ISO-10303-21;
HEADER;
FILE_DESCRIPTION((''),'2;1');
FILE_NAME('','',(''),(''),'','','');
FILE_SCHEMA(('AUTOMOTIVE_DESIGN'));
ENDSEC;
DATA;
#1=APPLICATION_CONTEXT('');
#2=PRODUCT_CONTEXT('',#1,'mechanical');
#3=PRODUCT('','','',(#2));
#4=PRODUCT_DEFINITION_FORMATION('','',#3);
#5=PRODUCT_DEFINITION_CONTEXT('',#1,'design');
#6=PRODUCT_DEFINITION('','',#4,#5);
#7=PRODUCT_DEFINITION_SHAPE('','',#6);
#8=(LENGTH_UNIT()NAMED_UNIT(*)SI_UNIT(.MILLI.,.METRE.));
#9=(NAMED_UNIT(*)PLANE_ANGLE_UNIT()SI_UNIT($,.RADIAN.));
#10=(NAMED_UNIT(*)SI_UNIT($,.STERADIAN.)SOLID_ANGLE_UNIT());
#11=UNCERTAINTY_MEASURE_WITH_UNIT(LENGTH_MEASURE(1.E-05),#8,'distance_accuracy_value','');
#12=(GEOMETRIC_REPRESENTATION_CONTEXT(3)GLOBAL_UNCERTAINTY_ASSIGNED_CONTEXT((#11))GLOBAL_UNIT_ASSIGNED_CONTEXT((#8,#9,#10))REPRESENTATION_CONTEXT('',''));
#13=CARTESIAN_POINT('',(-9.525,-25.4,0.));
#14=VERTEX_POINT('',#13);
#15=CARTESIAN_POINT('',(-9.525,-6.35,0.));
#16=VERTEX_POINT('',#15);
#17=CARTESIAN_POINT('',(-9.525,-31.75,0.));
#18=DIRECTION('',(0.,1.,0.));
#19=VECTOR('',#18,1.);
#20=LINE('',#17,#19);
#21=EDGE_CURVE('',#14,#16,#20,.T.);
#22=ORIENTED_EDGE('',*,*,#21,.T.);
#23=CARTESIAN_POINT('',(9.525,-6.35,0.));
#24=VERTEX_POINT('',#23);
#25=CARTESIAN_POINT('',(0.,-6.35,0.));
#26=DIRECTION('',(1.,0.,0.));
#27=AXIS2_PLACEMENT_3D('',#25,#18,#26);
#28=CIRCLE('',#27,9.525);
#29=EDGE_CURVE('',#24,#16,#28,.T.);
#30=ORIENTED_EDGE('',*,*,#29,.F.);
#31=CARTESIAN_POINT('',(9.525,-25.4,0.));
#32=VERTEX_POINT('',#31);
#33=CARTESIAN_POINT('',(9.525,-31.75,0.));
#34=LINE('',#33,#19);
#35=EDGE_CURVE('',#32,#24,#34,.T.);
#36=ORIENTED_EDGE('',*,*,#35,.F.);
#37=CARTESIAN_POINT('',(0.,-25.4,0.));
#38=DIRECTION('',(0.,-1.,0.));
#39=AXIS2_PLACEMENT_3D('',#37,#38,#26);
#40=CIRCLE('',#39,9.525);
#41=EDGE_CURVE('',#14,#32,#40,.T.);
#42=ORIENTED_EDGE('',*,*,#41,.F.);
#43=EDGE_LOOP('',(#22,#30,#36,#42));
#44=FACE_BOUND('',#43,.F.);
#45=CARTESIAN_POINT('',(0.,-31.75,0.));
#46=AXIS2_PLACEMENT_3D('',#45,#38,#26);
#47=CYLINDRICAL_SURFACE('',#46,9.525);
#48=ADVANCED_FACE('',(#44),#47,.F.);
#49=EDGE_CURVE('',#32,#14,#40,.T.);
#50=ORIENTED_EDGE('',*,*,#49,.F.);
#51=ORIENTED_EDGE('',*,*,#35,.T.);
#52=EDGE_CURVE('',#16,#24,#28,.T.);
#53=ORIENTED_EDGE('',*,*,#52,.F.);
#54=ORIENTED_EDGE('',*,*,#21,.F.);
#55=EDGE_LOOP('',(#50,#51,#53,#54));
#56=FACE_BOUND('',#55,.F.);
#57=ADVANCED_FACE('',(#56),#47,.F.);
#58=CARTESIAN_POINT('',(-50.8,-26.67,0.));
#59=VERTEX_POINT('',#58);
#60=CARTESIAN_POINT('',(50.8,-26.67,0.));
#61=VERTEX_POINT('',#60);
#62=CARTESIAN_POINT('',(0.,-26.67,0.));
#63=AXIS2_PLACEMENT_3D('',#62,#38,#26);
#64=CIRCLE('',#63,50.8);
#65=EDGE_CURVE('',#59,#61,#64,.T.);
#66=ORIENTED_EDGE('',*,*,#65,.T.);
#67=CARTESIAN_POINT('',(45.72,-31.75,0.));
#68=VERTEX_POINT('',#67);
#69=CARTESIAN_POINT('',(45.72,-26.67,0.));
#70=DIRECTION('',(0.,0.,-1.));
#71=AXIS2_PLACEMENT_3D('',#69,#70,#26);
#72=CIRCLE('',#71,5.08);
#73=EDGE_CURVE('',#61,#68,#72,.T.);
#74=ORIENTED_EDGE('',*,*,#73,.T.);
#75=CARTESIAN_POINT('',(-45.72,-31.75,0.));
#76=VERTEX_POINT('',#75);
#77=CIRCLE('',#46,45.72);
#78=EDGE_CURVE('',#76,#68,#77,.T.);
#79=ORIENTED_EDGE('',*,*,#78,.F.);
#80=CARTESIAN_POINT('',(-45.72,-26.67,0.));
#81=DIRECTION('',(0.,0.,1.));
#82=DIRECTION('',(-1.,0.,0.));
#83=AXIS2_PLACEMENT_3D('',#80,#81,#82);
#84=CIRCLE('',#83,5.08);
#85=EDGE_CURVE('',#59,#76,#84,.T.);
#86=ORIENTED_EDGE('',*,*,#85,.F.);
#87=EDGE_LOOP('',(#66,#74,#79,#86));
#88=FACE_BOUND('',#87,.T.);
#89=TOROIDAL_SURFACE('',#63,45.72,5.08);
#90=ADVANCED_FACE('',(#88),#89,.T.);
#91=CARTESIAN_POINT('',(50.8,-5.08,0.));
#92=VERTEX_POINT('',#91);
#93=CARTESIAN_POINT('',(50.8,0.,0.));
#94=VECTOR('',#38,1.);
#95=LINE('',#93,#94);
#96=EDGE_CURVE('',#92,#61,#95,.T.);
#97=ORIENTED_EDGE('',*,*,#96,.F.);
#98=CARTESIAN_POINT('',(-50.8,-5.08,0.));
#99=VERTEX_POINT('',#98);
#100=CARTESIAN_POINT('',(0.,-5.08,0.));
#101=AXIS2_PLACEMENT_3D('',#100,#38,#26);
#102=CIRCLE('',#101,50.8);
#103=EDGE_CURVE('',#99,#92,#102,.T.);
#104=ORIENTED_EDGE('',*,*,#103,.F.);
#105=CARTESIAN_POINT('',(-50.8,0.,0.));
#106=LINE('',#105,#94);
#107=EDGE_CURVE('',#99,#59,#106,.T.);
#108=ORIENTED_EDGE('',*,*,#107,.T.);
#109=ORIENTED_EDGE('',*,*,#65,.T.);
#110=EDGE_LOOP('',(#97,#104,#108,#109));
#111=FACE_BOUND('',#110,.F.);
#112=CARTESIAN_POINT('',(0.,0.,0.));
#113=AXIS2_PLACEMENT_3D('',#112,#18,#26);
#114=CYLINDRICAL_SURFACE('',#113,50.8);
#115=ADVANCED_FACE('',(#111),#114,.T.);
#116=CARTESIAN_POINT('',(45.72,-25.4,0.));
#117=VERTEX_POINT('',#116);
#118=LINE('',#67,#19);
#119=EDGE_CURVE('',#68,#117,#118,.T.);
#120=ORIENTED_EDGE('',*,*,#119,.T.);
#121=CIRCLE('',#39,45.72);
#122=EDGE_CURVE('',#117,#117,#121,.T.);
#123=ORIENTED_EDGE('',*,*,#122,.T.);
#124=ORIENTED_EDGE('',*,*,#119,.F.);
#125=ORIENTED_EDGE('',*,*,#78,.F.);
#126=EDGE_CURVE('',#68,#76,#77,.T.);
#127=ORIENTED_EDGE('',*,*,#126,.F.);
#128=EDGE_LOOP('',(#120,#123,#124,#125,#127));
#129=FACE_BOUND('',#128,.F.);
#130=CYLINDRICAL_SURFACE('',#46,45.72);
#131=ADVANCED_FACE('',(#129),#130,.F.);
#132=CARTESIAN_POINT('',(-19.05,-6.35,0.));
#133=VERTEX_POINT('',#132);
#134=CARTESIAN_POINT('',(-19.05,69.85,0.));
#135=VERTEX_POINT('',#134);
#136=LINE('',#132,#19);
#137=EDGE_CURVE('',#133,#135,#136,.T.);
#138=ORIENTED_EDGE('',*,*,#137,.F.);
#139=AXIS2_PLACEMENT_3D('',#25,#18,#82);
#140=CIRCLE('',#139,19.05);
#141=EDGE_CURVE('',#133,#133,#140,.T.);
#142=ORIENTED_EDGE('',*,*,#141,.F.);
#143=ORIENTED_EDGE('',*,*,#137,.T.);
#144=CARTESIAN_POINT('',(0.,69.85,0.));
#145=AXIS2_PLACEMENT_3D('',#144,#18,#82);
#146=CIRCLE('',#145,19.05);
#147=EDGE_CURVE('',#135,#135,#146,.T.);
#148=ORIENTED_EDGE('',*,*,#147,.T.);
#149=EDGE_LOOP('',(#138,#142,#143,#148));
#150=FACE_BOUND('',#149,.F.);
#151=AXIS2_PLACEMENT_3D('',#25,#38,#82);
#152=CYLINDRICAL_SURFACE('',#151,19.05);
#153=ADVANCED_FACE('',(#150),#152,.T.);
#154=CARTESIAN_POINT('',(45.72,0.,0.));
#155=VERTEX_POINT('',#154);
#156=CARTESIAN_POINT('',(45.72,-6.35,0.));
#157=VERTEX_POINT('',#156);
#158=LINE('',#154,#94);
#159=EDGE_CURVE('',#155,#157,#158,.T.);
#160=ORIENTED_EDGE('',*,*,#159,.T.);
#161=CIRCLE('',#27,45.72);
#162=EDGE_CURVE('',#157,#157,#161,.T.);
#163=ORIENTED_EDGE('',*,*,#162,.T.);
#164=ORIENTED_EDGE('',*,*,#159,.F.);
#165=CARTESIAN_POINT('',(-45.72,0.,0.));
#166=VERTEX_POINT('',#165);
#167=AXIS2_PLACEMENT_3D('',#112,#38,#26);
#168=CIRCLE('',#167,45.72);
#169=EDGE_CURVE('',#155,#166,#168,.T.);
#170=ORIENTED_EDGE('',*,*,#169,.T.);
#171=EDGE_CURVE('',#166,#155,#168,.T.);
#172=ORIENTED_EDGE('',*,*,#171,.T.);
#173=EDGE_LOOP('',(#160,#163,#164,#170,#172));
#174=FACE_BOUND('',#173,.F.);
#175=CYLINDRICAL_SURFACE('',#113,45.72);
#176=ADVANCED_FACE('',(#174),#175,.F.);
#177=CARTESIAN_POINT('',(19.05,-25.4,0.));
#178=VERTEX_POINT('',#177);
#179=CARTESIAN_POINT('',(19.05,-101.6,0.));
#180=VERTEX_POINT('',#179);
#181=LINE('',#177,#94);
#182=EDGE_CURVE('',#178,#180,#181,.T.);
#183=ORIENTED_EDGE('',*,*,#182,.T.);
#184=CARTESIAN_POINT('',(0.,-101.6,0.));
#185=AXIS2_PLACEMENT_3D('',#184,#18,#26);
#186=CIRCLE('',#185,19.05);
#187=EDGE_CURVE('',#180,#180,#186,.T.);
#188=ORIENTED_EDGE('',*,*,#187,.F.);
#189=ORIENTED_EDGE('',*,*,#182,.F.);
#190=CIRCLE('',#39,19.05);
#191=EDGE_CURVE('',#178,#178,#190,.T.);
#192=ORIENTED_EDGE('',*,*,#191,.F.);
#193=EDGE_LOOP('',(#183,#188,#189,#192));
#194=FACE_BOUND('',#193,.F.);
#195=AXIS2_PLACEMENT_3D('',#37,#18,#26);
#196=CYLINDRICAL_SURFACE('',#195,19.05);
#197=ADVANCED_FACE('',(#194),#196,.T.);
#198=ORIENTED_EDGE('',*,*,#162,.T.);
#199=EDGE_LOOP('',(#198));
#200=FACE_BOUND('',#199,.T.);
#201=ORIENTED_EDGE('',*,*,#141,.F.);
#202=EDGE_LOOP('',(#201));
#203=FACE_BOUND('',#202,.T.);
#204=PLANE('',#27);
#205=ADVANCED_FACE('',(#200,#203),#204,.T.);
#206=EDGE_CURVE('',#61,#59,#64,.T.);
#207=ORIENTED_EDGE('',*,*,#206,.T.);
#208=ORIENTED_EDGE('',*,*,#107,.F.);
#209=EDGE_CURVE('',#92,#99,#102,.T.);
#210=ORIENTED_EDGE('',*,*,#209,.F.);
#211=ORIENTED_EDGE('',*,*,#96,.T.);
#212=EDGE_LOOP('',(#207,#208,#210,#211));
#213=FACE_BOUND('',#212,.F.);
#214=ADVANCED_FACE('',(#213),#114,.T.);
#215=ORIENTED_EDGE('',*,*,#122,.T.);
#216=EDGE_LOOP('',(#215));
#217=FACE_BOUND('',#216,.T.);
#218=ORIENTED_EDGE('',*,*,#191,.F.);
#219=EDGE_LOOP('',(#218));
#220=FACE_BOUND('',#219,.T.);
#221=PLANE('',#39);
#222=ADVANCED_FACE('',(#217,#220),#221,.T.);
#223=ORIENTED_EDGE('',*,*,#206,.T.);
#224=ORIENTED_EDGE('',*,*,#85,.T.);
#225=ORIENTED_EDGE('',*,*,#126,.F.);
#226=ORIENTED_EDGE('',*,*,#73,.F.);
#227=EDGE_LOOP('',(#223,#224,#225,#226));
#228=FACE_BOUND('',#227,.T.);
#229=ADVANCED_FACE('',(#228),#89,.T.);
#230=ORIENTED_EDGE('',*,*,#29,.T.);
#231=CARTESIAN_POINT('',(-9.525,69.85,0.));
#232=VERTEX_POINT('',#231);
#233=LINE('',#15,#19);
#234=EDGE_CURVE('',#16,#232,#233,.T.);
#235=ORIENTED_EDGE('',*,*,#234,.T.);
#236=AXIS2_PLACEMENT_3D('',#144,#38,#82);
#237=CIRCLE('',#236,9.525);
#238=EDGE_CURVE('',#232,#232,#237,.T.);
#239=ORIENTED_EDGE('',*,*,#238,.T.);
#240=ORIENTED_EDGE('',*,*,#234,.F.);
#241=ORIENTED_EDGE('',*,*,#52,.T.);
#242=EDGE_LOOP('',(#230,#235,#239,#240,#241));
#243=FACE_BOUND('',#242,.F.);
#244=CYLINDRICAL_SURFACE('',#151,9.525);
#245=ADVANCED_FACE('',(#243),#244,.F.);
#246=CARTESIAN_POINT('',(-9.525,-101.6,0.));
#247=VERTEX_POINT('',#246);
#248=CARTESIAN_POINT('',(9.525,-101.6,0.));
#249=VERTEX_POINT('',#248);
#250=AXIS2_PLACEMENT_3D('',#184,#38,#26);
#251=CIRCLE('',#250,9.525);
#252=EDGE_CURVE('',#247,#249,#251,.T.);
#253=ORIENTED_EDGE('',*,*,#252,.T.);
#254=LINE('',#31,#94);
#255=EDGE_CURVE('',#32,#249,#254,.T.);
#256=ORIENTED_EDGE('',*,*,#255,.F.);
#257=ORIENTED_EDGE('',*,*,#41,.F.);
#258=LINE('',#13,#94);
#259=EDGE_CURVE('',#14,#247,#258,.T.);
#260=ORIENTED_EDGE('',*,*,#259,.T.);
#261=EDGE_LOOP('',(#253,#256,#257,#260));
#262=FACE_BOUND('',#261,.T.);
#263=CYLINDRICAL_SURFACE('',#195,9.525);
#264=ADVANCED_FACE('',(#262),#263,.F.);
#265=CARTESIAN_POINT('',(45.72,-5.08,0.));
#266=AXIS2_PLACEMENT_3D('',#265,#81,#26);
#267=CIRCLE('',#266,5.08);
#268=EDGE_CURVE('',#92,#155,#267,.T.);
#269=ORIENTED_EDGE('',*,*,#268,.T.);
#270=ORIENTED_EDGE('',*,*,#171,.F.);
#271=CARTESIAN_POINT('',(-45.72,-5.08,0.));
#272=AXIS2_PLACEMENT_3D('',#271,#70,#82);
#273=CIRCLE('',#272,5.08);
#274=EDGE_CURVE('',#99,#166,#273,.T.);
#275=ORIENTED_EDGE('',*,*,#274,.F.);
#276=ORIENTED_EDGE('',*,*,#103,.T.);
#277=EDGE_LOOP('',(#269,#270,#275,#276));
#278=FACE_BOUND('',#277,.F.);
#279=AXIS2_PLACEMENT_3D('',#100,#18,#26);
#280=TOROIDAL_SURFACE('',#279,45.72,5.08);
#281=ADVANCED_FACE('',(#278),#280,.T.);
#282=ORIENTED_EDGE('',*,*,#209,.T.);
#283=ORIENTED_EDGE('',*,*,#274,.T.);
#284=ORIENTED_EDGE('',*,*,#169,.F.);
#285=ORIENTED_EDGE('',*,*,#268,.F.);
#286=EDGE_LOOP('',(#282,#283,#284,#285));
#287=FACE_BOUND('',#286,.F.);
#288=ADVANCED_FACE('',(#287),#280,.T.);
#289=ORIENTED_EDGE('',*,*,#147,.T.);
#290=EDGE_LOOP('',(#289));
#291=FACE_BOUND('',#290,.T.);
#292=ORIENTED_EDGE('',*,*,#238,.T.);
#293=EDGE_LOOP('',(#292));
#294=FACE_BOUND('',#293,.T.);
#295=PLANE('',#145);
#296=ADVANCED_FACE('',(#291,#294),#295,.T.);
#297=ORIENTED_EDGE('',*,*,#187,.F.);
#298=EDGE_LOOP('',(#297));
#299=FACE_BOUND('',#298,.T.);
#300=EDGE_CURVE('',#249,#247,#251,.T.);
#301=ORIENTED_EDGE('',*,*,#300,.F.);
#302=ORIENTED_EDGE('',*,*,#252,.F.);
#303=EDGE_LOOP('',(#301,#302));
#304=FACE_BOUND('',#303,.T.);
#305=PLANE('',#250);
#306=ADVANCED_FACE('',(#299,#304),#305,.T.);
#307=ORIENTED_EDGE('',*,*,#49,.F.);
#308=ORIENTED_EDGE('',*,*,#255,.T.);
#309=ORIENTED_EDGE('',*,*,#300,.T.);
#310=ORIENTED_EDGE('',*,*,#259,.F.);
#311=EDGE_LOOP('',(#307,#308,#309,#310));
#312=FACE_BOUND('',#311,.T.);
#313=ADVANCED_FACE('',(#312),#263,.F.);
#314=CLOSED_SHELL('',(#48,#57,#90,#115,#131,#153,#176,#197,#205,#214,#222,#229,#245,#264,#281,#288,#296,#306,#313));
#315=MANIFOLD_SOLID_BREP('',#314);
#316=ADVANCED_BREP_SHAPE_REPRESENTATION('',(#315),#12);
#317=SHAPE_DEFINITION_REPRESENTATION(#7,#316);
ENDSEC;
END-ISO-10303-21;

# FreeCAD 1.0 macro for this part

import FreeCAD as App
import Part
import Sketcher
from FreeCAD import Vector
Q = App.Units.Quantity


def edges_at(feature, points):
    """Names of the edges that pass closest to the given points."""
    edges = feature.Shape.Edges
    near = lambda p: min(range(len(edges)), key=lambda i: edges[i].distToShape(Part.Vertex(*p))[0])
    return sorted({f"Edge{near(p) + 1}" for p in points})

doc = App.newDocument("Part")
body = doc.addObject("PartDesign::Body", "Body")

# Sketch on XZ plane
sketch1 = body.newObject("Sketcher::SketchObject", "Sketch")
sketch1.AttachmentSupport = (doc.getObject("XZ_Plane"), [""])
sketch1.MapMode = "FlatFace"
sketch1.addGeometry(Part.Circle(Vector(0, 0, 0), Vector(0, 0, 1), 51), False)
sketch1.addConstraint([
    Sketcher.Constraint("Coincident", 0, 3, -1, 1),
    Sketcher.Constraint("Diameter", 0, Q("4 in")),
])
pad1 = body.newObject("PartDesign::Pad", "Pad")
pad1.Profile = sketch1
pad1.Length = Q("1.25 in")
doc.recompute()

fillet = body.newObject("PartDesign::Fillet", "Fillet")
fillet.Base = (pad1, edges_at(pad1, [(-50.8, -31.75, 0), (-50.8, 0, 0)]))
fillet.Radius = Q("0.2 in")

# Sketch on XZ plane
sketch2 = body.newObject("Sketcher::SketchObject", "Sketch001")
sketch2.AttachmentSupport = (doc.getObject("XZ_Plane"), [""])
sketch2.MapMode = "FlatFace"
sketch2.AttachmentOffset = App.Placement(Vector(0, 0, 1.25 * 25.4), App.Rotation())
sketch2.addGeometry(Part.Circle(Vector(0, 0, 0), Vector(0, 0, 1), 10), False)
sketch2.addConstraint([
    Sketcher.Constraint("Coincident", 0, 3, -1, 1),
    Sketcher.Constraint("Diameter", 0, Q("0.75 in")),
])
pocket1 = body.newObject("PartDesign::Pocket", "Pocket")
pocket1.Profile = sketch2
pocket1.Type = "ThroughAll"

# Sketch on XZ plane
sketch3 = body.newObject("Sketcher::SketchObject", "Sketch002")
sketch3.AttachmentSupport = (doc.getObject("XZ_Plane"), [""])
sketch3.MapMode = "FlatFace"
sketch3.AttachmentOffset = App.Placement(Vector(0, 0, 1.25 * 25.4), App.Rotation())
sketch3.addGeometry([
    Part.Circle(Vector(0, 0, 0), Vector(0, 0, 1), 46),
    Part.Circle(Vector(0, 0, 0), Vector(0, 0, 1), 10),
], False)
sketch3.addConstraint([
    Sketcher.Constraint("Coincident", 0, 3, -1, 1),
    Sketcher.Constraint("Coincident", 1, 3, -1, 1),
    Sketcher.Constraint("Diameter", 0, Q("3.6 in")),
    Sketcher.Constraint("Diameter", 1, Q("0.75 in")),
])
pocket2 = body.newObject("PartDesign::Pocket", "Pocket001")
pocket2.Profile = sketch3
pocket2.Length = Q("0.25 in")

# Sketch on XZ plane
sketch4 = body.newObject("Sketcher::SketchObject", "Sketch003")
sketch4.AttachmentSupport = (doc.getObject("XZ_Plane"), [""])
sketch4.MapMode = "FlatFace"
sketch4.addGeometry([
    Part.Circle(Vector(0, 0, 0), Vector(0, 0, 1), 46),
    Part.Circle(Vector(0, 0, 0), Vector(0, 0, 1), 10),
], False)
sketch4.addConstraint([
    Sketcher.Constraint("Coincident", 0, 3, -1, 1),
    Sketcher.Constraint("Coincident", 1, 3, -1, 1),
    Sketcher.Constraint("Diameter", 0, Q("3.6 in")),
    Sketcher.Constraint("Diameter", 1, Q("0.75 in")),
])
pocket3 = body.newObject("PartDesign::Pocket", "Pocket002")
pocket3.Profile = sketch4
pocket3.Length = Q("0.25 in")
pocket3.Reversed = True

# Sketch on XZ plane
sketch5 = body.newObject("Sketcher::SketchObject", "Sketch004")
sketch5.AttachmentSupport = (doc.getObject("XZ_Plane"), [""])
sketch5.MapMode = "FlatFace"
sketch5.AttachmentOffset = App.Placement(Vector(0, 0, 1 * 25.4), App.Rotation())
sketch5.addGeometry([
    Part.Circle(Vector(0, 0, 0), Vector(0, 0, 1), 19),
    Part.Circle(Vector(0, 0, 0), Vector(0, 0, 1), 10),
], False)
sketch5.addConstraint([
    Sketcher.Constraint("Coincident", 0, 3, -1, 1),
    Sketcher.Constraint("Coincident", 1, 3, -1, 1),
    Sketcher.Constraint("Diameter", 0, Q("1.5 in")),
    Sketcher.Constraint("Diameter", 1, Q("0.75 in")),
])
pad2 = body.newObject("PartDesign::Pad", "Pad001")
pad2.Profile = sketch5
pad2.Length = Q("3 in")
body2 = doc.addObject("PartDesign::Body", "Body001")
doc.recompute()

body2.BaseFeature = body
doc.recompute()

mirroring = doc.addObject("Part::Mirroring", "Mirroring")
mirroring.Source = body
mirroring.Base = Vector(0, 0, 0)
mirroring.Normal = Vector(1, 0, 0)
body3 = doc.addObject("PartDesign::Body", "Body002")
body3.BaseFeature = mirroring
boolean = body2.newObject("PartDesign::Boolean", "Boolean")
boolean.Type = "Fuse"
boolean.addObjects([body3])
doc.recompute()

# Sketch on XZ plane
sketch6 = body2.newObject("Sketcher::SketchObject", "Sketch005")
sketch6.AttachmentSupport = (doc.getObject("XZ_Plane001"), [""])
sketch6.MapMode = "FlatFace"
sketch6.AttachmentOffset = App.Placement(Vector(0, 0, 0.25 * 25.4), App.Rotation())
sketch6.addGeometry([
    Part.Circle(Vector(0, 0, 0), Vector(0, 0, 1), 19),
    Part.Circle(Vector(0, 0, 0), Vector(0, 0, 1), 10),
], False)
sketch6.addConstraint([
    Sketcher.Constraint("Coincident", 0, 3, -1, 1),
    Sketcher.Constraint("Coincident", 1, 3, -1, 1),
    Sketcher.Constraint("Diameter", 0, Q("1.5 in")),
    Sketcher.Constraint("Diameter", 1, Q("0.75 in")),
])
pad3 = body2.newObject("PartDesign::Pad", "Pad002")
pad3.Profile = sketch6
pad3.Length = Q("3 in")
pad3.Reversed = True
mirroring.Visibility = False

doc.recompute()
